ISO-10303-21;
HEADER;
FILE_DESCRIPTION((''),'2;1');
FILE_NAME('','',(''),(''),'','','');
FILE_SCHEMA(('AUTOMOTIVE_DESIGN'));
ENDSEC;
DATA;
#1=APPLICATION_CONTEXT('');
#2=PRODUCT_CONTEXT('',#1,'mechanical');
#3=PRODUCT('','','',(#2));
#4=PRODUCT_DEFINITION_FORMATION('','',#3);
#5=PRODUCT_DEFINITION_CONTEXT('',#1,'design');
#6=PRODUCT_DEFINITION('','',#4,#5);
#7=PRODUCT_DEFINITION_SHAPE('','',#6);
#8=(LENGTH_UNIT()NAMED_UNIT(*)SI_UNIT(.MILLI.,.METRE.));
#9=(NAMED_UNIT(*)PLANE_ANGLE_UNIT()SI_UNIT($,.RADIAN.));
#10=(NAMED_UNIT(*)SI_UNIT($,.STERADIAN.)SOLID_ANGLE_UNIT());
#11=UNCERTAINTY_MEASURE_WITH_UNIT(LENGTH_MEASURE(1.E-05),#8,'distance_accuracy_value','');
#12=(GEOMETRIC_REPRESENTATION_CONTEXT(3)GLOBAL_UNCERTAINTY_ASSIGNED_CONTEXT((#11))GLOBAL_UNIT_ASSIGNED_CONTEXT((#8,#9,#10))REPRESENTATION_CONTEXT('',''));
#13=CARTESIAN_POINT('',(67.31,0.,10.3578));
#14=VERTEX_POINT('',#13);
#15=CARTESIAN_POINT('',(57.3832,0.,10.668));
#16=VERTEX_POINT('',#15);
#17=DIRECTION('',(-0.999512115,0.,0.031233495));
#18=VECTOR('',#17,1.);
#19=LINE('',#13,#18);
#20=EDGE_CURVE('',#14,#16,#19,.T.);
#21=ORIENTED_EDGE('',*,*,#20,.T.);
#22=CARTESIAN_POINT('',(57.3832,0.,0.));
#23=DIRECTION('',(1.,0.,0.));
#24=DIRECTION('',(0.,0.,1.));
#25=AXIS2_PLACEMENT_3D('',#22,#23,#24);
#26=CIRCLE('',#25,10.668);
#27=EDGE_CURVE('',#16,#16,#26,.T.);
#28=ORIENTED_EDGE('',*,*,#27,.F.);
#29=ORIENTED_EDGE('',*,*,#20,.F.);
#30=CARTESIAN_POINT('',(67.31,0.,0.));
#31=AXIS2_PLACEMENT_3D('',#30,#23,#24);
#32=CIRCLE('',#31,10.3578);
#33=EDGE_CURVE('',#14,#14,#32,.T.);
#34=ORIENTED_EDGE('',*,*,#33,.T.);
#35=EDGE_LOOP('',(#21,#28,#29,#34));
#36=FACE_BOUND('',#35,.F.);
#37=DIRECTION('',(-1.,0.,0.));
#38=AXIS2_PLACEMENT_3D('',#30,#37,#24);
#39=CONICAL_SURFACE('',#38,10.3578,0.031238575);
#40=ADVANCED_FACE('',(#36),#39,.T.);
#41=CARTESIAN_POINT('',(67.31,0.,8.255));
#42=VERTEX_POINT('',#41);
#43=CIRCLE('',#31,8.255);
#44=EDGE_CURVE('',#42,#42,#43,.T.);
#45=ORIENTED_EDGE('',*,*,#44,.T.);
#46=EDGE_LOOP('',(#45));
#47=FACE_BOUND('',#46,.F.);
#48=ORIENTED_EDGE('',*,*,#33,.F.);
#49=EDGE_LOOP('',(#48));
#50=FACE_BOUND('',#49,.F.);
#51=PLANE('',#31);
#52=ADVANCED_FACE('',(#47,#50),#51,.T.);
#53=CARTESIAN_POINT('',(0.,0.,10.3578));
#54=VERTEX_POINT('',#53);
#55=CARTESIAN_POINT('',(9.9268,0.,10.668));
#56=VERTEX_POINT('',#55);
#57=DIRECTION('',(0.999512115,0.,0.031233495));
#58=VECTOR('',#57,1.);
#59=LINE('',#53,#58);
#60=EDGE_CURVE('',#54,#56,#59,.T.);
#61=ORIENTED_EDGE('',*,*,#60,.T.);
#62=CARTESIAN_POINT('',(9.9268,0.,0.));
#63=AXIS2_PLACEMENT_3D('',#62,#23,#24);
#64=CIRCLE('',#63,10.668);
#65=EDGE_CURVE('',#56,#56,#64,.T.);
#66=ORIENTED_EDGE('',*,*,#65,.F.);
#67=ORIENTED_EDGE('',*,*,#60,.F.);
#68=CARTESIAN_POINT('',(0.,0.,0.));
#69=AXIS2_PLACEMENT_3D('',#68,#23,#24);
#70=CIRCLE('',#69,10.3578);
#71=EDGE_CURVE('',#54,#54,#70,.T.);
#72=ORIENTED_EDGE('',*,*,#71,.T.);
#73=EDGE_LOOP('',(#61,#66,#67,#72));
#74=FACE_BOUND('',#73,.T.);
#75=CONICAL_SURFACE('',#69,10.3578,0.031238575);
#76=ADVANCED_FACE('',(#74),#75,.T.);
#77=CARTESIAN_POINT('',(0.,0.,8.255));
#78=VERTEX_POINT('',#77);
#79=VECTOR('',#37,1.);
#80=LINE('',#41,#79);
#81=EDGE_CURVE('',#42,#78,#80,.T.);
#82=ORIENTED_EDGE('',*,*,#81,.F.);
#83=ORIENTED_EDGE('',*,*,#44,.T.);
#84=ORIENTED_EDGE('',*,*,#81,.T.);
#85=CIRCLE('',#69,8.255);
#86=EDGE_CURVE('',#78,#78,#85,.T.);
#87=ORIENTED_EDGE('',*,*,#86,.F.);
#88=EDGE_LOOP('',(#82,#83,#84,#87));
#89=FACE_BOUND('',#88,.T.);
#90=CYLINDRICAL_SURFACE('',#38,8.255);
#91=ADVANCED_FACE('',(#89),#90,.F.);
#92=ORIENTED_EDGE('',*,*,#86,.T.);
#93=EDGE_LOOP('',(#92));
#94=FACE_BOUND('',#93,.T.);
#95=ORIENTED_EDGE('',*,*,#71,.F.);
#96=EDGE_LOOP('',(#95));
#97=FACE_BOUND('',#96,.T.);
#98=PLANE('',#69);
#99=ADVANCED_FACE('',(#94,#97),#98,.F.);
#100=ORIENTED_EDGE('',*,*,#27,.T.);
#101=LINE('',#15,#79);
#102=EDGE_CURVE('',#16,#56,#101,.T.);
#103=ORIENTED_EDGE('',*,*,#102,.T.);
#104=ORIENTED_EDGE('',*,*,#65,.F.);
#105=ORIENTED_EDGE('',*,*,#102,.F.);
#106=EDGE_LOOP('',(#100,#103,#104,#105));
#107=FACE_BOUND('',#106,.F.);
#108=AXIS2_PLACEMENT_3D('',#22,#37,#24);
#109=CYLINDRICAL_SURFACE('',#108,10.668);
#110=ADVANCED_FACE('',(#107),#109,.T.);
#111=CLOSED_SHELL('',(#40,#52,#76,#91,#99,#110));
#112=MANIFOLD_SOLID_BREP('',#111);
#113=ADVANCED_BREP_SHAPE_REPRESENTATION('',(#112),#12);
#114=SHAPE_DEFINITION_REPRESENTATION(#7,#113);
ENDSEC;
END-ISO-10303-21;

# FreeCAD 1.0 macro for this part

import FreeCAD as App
import Part
import Sketcher

V = App.Vector
Q = App.Units.Quantity

doc = App.newDocument("Part")
body = doc.addObject("PartDesign::Body", "Body")

# Sketch on XZ plane
sketch1 = doc.addObject("Sketcher::SketchObject", "Sketch")
body.addObject(sketch1)
sketch1.AttachmentSupport = (doc.XZ_Plane, [""])
sketch1.MapMode = "FlatFace"
sketch1.addGeometry(Part.LineSegment(V(67.3, 10.4, 0), V(67.3, 8.3, 0)), False)
sketch1.addGeometry(Part.LineSegment(V(67.3, 8.3, 0), V(0, 8.3, 0)), False)
sketch1.addGeometry(Part.LineSegment(V(0, 8.3, 0), V(0, 10.4, 0)), False)
sketch1.addGeometry(Part.LineSegment(V(0, 10.4, 0), V(9.9, 10.7, 0)), False)
sketch1.addGeometry(Part.LineSegment(V(9.9, 10.7, 0), V(57.4, 10.7, 0)), False)
sketch1.addGeometry(Part.LineSegment(V(57.4, 10.7, 0), V(67.3, 10.4, 0)), False)
sketch1.addConstraint(Sketcher.Constraint("Coincident", 0, 2, 1, 1))
sketch1.addConstraint(Sketcher.Constraint("Coincident", 1, 2, 2, 1))
sketch1.addConstraint(Sketcher.Constraint("Coincident", 2, 2, 3, 1))
sketch1.addConstraint(Sketcher.Constraint("Coincident", 3, 2, 4, 1))
sketch1.addConstraint(Sketcher.Constraint("Coincident", 4, 2, 5, 1))
sketch1.addConstraint(Sketcher.Constraint("Coincident", 5, 2, 0, 1))
sketch1.addConstraint(Sketcher.Constraint("Vertical", 0))
sketch1.addConstraint(Sketcher.Constraint("Horizontal", 1))
sketch1.addConstraint(Sketcher.Constraint("Vertical", 2))
sketch1.addConstraint(Sketcher.Constraint("Horizontal", 4))
sketch1.addConstraint(Sketcher.Constraint("PointOnObject", 1, 2, -2))
sketch1.addConstraint(Sketcher.Constraint("Horizontal", 2, 2, 5, 2))
sketch1.addConstraint(Sketcher.Constraint("Equal", 3, 5))
sketch1.addConstraint(Sketcher.Constraint("DistanceX", 1, 2, 1, 1, Q("2.65 in")))
sketch1.addConstraint(Sketcher.Constraint("Angle", 3, Q("1.7898 deg")))
sketch1.addConstraint(Sketcher.Constraint("DistanceY", -1, 1, 3, 2, Q("0.42 in")))
sketch1.addConstraint(Sketcher.Constraint("Distance", 3, Q("0.391 in")))
sketch1.addConstraint(Sketcher.Constraint("DistanceY", -1, 1, 0, 2, Q("0.325 in")))
revolution = doc.addObject("PartDesign::Revolution", "Revolution")
body.addObject(revolution)
revolution.Profile = sketch1
revolution.ReferenceAxis = (sketch1, ["H_Axis"])
revolution.Angle = 360

doc.recompute()
